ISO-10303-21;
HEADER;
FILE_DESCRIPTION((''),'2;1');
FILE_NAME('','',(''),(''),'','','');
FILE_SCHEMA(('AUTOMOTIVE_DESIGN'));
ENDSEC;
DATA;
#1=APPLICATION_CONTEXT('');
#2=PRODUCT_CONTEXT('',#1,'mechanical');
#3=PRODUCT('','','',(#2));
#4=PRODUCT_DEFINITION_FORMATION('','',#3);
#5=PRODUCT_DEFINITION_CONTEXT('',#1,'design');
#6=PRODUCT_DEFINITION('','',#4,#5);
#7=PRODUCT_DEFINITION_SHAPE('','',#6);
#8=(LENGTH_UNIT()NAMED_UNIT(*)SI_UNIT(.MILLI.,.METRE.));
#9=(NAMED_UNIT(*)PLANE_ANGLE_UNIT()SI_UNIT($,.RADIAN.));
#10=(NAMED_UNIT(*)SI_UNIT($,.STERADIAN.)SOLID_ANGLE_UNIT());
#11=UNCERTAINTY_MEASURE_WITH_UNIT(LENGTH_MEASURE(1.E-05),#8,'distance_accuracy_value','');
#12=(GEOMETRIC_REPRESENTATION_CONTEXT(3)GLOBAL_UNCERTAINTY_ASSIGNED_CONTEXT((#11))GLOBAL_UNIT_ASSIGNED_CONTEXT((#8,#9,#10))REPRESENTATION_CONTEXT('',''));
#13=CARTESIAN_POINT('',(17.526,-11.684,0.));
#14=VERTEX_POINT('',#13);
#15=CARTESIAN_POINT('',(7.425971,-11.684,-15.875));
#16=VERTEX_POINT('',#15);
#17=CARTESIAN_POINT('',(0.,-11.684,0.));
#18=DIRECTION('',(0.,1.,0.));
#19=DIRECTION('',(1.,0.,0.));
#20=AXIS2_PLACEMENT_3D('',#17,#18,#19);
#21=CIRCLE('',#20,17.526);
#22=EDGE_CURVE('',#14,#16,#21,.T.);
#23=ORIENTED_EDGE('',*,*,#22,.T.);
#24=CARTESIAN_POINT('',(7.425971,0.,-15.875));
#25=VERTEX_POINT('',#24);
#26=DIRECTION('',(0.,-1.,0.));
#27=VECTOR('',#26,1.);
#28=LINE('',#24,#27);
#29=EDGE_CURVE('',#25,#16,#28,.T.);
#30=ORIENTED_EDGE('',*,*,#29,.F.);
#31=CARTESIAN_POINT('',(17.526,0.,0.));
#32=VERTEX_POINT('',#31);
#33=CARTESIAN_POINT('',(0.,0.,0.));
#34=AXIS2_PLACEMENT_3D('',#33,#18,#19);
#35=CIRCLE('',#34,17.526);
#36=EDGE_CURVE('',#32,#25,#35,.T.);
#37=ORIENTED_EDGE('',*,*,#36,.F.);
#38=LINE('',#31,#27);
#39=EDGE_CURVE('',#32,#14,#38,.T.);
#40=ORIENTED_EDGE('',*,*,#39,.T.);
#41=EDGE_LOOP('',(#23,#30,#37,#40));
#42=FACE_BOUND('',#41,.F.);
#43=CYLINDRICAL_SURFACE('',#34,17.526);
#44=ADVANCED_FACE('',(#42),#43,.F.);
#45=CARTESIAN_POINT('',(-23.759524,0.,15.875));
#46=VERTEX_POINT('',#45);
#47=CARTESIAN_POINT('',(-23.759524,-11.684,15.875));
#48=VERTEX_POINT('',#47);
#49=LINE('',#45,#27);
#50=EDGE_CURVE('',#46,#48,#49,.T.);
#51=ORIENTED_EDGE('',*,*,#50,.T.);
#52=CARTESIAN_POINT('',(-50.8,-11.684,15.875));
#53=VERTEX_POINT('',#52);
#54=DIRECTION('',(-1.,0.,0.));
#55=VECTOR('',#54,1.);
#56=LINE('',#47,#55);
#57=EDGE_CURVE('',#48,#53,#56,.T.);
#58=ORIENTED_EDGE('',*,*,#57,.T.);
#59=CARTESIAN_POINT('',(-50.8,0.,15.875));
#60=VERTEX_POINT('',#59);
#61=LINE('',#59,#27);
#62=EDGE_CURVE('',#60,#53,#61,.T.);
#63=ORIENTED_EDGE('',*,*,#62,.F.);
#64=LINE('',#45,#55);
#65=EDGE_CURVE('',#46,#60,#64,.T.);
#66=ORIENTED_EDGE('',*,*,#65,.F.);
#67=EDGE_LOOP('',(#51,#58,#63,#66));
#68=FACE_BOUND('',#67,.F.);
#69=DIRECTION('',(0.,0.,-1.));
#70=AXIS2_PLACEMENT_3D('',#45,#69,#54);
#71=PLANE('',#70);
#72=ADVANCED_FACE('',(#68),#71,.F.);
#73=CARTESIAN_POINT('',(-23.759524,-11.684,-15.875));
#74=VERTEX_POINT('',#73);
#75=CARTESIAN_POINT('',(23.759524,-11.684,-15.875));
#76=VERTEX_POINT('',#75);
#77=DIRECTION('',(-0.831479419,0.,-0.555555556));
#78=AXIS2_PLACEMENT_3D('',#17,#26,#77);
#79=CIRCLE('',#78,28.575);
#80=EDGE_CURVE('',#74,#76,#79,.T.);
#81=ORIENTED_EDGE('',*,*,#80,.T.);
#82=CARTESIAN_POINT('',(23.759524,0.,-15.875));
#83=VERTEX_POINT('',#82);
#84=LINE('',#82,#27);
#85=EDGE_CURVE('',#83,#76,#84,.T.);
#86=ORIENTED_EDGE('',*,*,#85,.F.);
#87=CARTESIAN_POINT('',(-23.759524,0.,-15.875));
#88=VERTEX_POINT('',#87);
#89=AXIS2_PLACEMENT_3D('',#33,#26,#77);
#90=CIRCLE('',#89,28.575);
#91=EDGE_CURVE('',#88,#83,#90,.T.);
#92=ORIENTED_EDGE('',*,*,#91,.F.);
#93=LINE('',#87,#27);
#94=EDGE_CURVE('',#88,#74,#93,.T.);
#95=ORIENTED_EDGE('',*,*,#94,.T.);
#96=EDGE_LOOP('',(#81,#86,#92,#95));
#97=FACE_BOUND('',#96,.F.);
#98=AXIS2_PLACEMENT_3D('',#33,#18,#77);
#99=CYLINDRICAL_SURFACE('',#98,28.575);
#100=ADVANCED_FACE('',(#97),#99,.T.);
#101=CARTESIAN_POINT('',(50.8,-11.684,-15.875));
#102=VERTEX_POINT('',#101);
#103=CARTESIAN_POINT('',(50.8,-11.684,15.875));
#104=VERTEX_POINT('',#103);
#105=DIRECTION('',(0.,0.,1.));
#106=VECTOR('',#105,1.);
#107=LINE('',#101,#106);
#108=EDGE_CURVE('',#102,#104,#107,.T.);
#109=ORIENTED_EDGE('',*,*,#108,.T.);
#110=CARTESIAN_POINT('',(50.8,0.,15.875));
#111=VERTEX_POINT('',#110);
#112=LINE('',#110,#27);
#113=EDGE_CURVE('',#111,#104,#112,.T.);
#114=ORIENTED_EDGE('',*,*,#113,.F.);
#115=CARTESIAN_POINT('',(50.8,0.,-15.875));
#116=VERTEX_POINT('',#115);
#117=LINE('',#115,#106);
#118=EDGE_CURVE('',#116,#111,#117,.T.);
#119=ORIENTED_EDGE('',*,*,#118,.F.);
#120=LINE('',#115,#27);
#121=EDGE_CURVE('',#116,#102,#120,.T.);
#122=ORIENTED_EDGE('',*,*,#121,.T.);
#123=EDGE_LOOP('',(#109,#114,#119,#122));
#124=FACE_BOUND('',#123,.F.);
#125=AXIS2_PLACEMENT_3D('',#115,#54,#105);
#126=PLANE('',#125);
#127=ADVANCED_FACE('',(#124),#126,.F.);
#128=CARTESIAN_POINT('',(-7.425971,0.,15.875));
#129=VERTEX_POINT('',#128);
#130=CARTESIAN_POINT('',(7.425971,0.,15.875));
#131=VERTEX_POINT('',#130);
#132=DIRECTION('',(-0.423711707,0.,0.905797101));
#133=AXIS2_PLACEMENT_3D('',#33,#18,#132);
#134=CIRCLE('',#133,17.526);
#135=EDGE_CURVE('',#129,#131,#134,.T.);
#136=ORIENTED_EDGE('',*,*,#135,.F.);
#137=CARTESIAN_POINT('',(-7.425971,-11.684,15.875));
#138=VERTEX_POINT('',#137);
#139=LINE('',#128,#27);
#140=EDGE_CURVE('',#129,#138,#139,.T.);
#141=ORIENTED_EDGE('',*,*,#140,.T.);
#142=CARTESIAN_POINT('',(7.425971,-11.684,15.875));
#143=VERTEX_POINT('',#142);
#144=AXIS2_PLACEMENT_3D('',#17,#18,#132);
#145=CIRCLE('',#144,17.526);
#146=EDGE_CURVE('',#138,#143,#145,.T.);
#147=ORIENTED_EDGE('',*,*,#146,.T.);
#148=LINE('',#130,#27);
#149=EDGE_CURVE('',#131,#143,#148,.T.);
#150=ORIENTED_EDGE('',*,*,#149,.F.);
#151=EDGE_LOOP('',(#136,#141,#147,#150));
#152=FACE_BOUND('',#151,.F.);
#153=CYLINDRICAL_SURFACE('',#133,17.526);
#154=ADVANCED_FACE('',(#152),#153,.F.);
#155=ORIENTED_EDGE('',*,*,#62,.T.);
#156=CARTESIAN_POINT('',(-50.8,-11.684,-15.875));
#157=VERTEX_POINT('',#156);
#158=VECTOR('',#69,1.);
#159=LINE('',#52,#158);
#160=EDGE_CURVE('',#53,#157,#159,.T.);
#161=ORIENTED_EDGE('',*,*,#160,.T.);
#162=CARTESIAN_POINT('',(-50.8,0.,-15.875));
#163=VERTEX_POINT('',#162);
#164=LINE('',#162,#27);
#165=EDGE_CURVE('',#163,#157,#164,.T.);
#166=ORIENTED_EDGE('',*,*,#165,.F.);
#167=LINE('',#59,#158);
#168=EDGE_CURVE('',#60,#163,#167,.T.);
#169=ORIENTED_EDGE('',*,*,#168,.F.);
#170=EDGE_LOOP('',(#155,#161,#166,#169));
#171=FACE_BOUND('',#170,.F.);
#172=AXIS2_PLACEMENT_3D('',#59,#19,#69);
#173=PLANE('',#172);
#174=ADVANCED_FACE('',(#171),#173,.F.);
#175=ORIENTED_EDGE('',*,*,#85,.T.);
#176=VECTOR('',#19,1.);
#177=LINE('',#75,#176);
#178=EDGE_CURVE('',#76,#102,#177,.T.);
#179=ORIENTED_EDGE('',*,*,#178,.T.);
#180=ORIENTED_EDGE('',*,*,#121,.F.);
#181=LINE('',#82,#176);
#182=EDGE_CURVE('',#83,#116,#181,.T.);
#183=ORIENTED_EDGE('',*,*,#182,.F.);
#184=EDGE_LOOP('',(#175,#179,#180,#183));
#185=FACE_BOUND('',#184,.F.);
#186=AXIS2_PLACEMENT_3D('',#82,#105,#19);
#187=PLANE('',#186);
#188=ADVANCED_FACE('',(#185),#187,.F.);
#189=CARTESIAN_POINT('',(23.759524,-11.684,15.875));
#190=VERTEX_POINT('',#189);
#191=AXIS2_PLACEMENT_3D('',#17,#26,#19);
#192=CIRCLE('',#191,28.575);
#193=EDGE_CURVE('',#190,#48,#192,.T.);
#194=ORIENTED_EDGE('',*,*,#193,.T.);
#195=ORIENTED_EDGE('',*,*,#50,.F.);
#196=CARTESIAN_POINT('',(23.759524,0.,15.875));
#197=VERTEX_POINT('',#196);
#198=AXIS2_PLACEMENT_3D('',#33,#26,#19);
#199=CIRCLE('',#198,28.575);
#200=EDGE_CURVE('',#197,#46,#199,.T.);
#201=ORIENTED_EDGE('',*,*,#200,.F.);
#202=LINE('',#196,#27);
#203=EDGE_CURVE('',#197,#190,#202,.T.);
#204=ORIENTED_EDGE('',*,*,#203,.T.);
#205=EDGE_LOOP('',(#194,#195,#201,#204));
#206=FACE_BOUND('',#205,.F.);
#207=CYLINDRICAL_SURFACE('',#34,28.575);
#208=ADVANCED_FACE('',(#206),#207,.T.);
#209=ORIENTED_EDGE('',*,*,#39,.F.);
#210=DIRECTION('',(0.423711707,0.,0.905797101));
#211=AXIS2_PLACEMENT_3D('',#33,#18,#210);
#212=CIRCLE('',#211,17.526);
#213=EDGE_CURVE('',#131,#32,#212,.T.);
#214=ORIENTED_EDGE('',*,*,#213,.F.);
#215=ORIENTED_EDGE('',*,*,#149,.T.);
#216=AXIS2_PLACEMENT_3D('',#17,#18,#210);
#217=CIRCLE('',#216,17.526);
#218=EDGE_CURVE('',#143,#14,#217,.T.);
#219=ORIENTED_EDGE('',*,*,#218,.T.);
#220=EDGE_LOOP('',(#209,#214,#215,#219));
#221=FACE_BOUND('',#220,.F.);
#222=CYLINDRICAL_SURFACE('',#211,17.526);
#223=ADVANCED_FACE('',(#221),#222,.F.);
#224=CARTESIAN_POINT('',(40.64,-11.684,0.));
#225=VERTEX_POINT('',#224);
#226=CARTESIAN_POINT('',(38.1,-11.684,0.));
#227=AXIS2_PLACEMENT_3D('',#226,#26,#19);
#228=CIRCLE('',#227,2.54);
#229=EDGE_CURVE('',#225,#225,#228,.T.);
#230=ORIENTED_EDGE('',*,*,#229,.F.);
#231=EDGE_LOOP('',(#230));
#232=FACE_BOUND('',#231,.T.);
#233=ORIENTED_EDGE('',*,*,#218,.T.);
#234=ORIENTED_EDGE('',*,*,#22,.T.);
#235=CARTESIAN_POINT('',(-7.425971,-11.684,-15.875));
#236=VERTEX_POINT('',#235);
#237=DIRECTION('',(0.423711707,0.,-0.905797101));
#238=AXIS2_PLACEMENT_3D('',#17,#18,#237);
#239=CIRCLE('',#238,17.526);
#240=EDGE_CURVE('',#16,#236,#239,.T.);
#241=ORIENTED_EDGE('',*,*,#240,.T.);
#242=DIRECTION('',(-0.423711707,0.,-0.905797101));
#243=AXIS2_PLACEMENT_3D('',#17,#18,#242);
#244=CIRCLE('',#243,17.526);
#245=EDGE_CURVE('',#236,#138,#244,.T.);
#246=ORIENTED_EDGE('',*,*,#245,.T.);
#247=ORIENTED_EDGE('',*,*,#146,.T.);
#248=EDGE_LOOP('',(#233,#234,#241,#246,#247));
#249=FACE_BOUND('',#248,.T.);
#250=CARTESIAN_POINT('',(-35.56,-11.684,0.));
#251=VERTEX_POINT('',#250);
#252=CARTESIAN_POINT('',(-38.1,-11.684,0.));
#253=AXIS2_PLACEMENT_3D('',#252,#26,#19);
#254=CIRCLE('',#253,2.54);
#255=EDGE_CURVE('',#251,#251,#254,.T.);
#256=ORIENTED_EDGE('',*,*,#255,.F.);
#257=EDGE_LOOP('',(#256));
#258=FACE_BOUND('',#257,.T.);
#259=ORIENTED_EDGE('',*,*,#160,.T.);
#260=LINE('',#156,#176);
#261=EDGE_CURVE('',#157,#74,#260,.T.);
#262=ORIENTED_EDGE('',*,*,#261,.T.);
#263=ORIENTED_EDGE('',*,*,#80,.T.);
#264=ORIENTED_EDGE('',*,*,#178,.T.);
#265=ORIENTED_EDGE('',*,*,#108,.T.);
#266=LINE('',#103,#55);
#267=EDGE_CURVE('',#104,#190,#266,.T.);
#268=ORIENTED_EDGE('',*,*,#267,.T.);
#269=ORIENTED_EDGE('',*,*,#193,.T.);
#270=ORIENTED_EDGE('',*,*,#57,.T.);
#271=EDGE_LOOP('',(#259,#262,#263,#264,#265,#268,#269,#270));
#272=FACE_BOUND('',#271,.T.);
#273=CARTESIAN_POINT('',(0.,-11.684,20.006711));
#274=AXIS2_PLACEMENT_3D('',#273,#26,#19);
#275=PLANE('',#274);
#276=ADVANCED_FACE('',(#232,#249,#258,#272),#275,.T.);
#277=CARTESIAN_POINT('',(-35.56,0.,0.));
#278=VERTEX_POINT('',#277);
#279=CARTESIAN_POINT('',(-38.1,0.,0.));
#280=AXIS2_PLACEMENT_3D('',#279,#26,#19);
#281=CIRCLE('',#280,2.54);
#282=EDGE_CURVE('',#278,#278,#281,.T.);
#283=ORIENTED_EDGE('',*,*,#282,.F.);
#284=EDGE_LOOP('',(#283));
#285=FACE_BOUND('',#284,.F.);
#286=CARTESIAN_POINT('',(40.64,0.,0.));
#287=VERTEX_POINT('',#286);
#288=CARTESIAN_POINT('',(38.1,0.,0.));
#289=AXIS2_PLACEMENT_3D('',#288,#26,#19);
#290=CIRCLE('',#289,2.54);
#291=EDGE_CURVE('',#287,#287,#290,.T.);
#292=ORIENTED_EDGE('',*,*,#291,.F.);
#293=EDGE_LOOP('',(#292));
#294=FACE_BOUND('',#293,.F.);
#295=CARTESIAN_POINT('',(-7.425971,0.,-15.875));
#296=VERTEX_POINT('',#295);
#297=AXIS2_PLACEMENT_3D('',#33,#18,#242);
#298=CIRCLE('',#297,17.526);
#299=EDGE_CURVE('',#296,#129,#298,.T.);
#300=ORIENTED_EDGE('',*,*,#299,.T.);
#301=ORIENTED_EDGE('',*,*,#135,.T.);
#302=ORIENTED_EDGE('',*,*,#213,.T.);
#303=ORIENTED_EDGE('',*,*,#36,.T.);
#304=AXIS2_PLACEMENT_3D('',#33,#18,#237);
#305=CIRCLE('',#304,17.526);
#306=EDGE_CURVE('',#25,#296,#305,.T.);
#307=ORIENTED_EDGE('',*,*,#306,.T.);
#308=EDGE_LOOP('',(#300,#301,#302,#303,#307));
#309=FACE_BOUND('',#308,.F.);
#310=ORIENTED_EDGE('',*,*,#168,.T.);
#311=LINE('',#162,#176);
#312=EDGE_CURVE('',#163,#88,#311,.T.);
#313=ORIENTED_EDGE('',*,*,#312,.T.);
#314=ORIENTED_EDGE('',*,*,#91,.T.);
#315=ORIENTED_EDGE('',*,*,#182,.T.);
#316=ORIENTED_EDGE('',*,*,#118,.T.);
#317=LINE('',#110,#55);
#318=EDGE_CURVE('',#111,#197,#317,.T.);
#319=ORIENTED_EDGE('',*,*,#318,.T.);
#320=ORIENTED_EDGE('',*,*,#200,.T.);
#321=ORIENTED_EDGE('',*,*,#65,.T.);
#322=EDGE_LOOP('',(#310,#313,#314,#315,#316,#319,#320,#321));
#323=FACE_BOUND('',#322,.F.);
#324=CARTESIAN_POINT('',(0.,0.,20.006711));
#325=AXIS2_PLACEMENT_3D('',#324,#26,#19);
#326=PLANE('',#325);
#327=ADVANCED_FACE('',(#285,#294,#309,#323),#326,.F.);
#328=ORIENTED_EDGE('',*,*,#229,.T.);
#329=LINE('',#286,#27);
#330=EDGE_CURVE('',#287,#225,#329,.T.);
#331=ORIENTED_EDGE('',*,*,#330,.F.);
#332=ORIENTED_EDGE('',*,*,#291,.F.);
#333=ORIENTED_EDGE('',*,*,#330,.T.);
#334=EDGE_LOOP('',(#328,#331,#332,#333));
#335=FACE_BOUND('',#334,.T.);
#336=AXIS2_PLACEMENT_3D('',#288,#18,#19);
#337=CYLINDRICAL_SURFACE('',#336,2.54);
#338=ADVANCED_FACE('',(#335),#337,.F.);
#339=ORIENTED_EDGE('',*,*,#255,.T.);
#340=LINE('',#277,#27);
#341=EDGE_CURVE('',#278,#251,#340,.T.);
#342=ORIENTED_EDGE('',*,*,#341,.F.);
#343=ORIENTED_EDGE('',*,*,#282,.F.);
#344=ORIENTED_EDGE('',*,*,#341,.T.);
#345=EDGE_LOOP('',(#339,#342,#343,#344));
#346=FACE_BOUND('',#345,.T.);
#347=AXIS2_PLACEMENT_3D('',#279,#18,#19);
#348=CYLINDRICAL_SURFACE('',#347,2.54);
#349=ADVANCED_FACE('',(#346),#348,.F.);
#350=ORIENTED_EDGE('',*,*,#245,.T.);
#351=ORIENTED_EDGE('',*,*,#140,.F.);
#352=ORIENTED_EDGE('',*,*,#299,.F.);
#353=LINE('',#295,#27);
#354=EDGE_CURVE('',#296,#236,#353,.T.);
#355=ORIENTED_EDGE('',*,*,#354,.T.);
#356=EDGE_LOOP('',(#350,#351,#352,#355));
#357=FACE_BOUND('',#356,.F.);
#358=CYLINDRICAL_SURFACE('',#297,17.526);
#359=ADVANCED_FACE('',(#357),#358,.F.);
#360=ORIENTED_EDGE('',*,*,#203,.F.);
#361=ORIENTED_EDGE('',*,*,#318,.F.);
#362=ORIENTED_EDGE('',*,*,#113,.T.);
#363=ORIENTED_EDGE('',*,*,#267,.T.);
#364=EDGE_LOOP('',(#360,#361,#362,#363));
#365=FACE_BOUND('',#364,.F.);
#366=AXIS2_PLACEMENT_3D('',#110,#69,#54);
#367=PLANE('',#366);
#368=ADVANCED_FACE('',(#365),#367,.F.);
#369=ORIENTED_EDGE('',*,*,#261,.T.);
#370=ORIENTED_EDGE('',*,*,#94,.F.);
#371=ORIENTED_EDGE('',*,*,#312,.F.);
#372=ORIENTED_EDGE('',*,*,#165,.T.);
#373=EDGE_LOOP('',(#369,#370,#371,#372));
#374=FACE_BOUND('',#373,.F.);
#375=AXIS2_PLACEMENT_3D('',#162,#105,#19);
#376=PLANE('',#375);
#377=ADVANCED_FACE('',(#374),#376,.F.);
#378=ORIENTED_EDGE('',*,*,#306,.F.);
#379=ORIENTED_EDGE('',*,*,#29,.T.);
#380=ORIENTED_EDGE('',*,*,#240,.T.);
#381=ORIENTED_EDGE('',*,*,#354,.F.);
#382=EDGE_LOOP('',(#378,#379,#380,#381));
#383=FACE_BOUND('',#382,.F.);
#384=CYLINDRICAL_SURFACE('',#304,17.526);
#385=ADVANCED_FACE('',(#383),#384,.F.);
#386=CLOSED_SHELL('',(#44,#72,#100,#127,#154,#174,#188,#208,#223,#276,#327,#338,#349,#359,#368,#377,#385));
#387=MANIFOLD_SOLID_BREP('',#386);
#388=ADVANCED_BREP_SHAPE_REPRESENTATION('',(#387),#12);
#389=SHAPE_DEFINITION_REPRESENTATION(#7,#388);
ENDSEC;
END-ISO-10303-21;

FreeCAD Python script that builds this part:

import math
import FreeCAD as App
import Part
import Sketcher

V = App.Vector
Q = App.Units.Quantity

doc = App.newDocument("Part")
params = doc.addObject("Spreadsheet::Sheet", "Params")
for row, (alias, value) in enumerate([
    ("sketch1_diameter", "0.2 in"),
    ("sketch1_radius", "0.69 in"),
    ("sketch1_radius2", "1.125 in"),
    ("sketch1_height", "1.25 in"),
    ("pad1_length", "0.46 in"),
], start=1):
    params.set(f"A{row}", alias)
    params.set(f"B{row}", "=" + value)
    params.setAlias(f"B{row}", alias)

body = doc.addObject("PartDesign::Body", "Body")

sketch1 = body.newObject("Sketcher::SketchObject", "Sketch")
sketch1.AttachmentSupport = (doc.getObject("XZ_Plane"), [""])
sketch1.MapMode = "FlatFace"
sketch1.addGeometry(Part.ArcOfCircle(Part.Circle(V(0, 0, 0), V(0, 0, 1), 28.6), math.radians(34), math.radians(146)), False)
sketch1.addGeometry(Part.LineSegment(V(-23.8, 15.9, 0), V(-50.8, 15.9, 0)), False)
sketch1.addGeometry(Part.LineSegment(V(-50.8, 15.9, 0), V(-50.8, -15.9, 0)), False)
sketch1.addGeometry(Part.LineSegment(V(-50.8, -15.9, 0), V(-23.8, -15.9, 0)), False)
sketch1.addGeometry(Part.ArcOfCircle(Part.Circle(V(0, 0, 0), V(0, 0, 1), 28.6), math.radians(-146), math.radians(-34)), False)
sketch1.addGeometry(Part.LineSegment(V(23.8, -15.9, 0), V(50.8, -15.9, 0)), False)
sketch1.addGeometry(Part.LineSegment(V(50.8, -15.9, 0), V(50.8, 15.9, 0)), False)
sketch1.addGeometry(Part.LineSegment(V(50.8, 15.9, 0), V(23.8, 15.9, 0)), False)
sketch1.addGeometry(Part.Circle(V(-38.1, 0, 0), V(0, 0, 1), 2.5), False)
sketch1.addGeometry(Part.ArcOfCircle(Part.Circle(V(0, 0, 0), V(0, 0, 1), 17.5), math.radians(65), math.radians(115)), False)
sketch1.addGeometry(Part.ArcOfCircle(Part.Circle(V(0, 0, 0), V(0, 0, 1), 17.5), math.radians(0), math.radians(65)), False)
sketch1.addGeometry(Part.ArcOfCircle(Part.Circle(V(0, 0, 0), V(0, 0, 1), 17.5), math.radians(-65), math.radians(0)), False)
sketch1.addGeometry(Part.ArcOfCircle(Part.Circle(V(0, 0, 0), V(0, 0, 1), 17.5), math.radians(-115), math.radians(-65)), False)
sketch1.addGeometry(Part.ArcOfCircle(Part.Circle(V(0, 0, 0), V(0, 0, 1), 17.5), math.radians(115), math.radians(245)), False)
sketch1.addGeometry(Part.Circle(V(38.1, 0, 0), V(0, 0, 1), 2.5), False)
sketch1.addConstraint(Sketcher.Constraint("Coincident", 0, 2, 1, 1))
sketch1.addConstraint(Sketcher.Constraint("Coincident", 1, 2, 2, 1))
sketch1.addConstraint(Sketcher.Constraint("Coincident", 2, 2, 3, 1))
sketch1.addConstraint(Sketcher.Constraint("Coincident", 3, 2, 4, 1))
sketch1.addConstraint(Sketcher.Constraint("Coincident", 4, 2, 5, 1))
sketch1.addConstraint(Sketcher.Constraint("Coincident", 5, 2, 6, 1))
sketch1.addConstraint(Sketcher.Constraint("Coincident", 6, 2, 7, 1))
sketch1.addConstraint(Sketcher.Constraint("Coincident", 7, 2, 0, 1))
sketch1.addConstraint(Sketcher.Constraint("Tangent", 9, 1, 10, 2))
sketch1.addConstraint(Sketcher.Constraint("Tangent", 10, 1, 11, 2))
sketch1.addConstraint(Sketcher.Constraint("Tangent", 11, 1, 12, 2))
sketch1.addConstraint(Sketcher.Constraint("Tangent", 12, 1, 13, 2))
sketch1.addConstraint(Sketcher.Constraint("Tangent", 13, 1, 9, 2))
sketch1.addConstraint(Sketcher.Constraint("Horizontal", 1))
sketch1.addConstraint(Sketcher.Constraint("Vertical", 2))
sketch1.addConstraint(Sketcher.Constraint("Horizontal", 3))
sketch1.addConstraint(Sketcher.Constraint("Horizontal", 5))
sketch1.addConstraint(Sketcher.Constraint("Vertical", 6))
sketch1.addConstraint(Sketcher.Constraint("Horizontal", 7))
sketch1.addConstraint(Sketcher.Constraint("Coincident", 0, 3, -1, 1))
sketch1.addConstraint(Sketcher.Constraint("Coincident", 4, 3, -1, 1))
sketch1.addConstraint(Sketcher.Constraint("Coincident", 9, 3, -1, 1))
sketch1.addConstraint(Sketcher.Constraint("Coincident", 11, 3, -1, 1))
sketch1.addConstraint(Sketcher.Constraint("Equal", 0, 4))
sketch1.addConstraint(Sketcher.Constraint("Equal", 8, 14))
sketch1.addConstraint(Sketcher.Constraint("Symmetric", 8, 3, 14, 3, -1, 1))
sketch1.addConstraint(Sketcher.Constraint("Symmetric", 1, 2, 5, 2, -1, 1))
sketch1.addConstraint(Sketcher.Constraint("PointOnObject", 8, 3, -1))
sketch1.addConstraint(Sketcher.Constraint("PointOnObject", 10, 1, -1))
sketch1.addConstraint(Sketcher.Constraint("Horizontal", 3, 2, 4, 2))
sketch1.addConstraint(Sketcher.Constraint("Horizontal", 1, 2, 6, 2))
sketch1.addConstraint(Sketcher.Constraint("Horizontal", 7, 2, 9, 1))
sketch1.addConstraint(Sketcher.Constraint("Horizontal", 5, 2, 11, 1))
sketch1.addConstraint(Sketcher.Constraint("Horizontal", 11, 1, 12, 1))
sketch1.addConstraint(Sketcher.Constraint("Horizontal", 9, 1, 13, 1))
sketch1.addConstraint(Sketcher.Constraint("Diameter", 8, Q("0.2 in")))
sketch1.addConstraint(Sketcher.Constraint("Radius", 9, Q("0.69 in")))
sketch1.addConstraint(Sketcher.Constraint("DistanceX", 1, 2, -1, 1, Q("2 in")))
sketch1.addConstraint(Sketcher.Constraint("Radius", 0, Q("1.125 in")))
sketch1.addConstraint(Sketcher.Constraint("DistanceY", 2, 2, 2, 1, Q("1.25 in")))
sketch1.addConstraint(Sketcher.Constraint("DistanceX", 8, 3, -1, 1, Q("1.5 in")))
sketch1.setExpression("Constraints[35]", "Params.sketch1_diameter")
sketch1.setExpression("Constraints[36]", "Params.sketch1_radius")
sketch1.setExpression("Constraints[38]", "Params.sketch1_radius2")
sketch1.setExpression("Constraints[39]", "Params.sketch1_height")
pad1 = body.newObject("PartDesign::Pad", "Pad")
pad1.Profile = sketch1
pad1.setExpression("Length", "Params.pad1_length")

doc.recompute()
